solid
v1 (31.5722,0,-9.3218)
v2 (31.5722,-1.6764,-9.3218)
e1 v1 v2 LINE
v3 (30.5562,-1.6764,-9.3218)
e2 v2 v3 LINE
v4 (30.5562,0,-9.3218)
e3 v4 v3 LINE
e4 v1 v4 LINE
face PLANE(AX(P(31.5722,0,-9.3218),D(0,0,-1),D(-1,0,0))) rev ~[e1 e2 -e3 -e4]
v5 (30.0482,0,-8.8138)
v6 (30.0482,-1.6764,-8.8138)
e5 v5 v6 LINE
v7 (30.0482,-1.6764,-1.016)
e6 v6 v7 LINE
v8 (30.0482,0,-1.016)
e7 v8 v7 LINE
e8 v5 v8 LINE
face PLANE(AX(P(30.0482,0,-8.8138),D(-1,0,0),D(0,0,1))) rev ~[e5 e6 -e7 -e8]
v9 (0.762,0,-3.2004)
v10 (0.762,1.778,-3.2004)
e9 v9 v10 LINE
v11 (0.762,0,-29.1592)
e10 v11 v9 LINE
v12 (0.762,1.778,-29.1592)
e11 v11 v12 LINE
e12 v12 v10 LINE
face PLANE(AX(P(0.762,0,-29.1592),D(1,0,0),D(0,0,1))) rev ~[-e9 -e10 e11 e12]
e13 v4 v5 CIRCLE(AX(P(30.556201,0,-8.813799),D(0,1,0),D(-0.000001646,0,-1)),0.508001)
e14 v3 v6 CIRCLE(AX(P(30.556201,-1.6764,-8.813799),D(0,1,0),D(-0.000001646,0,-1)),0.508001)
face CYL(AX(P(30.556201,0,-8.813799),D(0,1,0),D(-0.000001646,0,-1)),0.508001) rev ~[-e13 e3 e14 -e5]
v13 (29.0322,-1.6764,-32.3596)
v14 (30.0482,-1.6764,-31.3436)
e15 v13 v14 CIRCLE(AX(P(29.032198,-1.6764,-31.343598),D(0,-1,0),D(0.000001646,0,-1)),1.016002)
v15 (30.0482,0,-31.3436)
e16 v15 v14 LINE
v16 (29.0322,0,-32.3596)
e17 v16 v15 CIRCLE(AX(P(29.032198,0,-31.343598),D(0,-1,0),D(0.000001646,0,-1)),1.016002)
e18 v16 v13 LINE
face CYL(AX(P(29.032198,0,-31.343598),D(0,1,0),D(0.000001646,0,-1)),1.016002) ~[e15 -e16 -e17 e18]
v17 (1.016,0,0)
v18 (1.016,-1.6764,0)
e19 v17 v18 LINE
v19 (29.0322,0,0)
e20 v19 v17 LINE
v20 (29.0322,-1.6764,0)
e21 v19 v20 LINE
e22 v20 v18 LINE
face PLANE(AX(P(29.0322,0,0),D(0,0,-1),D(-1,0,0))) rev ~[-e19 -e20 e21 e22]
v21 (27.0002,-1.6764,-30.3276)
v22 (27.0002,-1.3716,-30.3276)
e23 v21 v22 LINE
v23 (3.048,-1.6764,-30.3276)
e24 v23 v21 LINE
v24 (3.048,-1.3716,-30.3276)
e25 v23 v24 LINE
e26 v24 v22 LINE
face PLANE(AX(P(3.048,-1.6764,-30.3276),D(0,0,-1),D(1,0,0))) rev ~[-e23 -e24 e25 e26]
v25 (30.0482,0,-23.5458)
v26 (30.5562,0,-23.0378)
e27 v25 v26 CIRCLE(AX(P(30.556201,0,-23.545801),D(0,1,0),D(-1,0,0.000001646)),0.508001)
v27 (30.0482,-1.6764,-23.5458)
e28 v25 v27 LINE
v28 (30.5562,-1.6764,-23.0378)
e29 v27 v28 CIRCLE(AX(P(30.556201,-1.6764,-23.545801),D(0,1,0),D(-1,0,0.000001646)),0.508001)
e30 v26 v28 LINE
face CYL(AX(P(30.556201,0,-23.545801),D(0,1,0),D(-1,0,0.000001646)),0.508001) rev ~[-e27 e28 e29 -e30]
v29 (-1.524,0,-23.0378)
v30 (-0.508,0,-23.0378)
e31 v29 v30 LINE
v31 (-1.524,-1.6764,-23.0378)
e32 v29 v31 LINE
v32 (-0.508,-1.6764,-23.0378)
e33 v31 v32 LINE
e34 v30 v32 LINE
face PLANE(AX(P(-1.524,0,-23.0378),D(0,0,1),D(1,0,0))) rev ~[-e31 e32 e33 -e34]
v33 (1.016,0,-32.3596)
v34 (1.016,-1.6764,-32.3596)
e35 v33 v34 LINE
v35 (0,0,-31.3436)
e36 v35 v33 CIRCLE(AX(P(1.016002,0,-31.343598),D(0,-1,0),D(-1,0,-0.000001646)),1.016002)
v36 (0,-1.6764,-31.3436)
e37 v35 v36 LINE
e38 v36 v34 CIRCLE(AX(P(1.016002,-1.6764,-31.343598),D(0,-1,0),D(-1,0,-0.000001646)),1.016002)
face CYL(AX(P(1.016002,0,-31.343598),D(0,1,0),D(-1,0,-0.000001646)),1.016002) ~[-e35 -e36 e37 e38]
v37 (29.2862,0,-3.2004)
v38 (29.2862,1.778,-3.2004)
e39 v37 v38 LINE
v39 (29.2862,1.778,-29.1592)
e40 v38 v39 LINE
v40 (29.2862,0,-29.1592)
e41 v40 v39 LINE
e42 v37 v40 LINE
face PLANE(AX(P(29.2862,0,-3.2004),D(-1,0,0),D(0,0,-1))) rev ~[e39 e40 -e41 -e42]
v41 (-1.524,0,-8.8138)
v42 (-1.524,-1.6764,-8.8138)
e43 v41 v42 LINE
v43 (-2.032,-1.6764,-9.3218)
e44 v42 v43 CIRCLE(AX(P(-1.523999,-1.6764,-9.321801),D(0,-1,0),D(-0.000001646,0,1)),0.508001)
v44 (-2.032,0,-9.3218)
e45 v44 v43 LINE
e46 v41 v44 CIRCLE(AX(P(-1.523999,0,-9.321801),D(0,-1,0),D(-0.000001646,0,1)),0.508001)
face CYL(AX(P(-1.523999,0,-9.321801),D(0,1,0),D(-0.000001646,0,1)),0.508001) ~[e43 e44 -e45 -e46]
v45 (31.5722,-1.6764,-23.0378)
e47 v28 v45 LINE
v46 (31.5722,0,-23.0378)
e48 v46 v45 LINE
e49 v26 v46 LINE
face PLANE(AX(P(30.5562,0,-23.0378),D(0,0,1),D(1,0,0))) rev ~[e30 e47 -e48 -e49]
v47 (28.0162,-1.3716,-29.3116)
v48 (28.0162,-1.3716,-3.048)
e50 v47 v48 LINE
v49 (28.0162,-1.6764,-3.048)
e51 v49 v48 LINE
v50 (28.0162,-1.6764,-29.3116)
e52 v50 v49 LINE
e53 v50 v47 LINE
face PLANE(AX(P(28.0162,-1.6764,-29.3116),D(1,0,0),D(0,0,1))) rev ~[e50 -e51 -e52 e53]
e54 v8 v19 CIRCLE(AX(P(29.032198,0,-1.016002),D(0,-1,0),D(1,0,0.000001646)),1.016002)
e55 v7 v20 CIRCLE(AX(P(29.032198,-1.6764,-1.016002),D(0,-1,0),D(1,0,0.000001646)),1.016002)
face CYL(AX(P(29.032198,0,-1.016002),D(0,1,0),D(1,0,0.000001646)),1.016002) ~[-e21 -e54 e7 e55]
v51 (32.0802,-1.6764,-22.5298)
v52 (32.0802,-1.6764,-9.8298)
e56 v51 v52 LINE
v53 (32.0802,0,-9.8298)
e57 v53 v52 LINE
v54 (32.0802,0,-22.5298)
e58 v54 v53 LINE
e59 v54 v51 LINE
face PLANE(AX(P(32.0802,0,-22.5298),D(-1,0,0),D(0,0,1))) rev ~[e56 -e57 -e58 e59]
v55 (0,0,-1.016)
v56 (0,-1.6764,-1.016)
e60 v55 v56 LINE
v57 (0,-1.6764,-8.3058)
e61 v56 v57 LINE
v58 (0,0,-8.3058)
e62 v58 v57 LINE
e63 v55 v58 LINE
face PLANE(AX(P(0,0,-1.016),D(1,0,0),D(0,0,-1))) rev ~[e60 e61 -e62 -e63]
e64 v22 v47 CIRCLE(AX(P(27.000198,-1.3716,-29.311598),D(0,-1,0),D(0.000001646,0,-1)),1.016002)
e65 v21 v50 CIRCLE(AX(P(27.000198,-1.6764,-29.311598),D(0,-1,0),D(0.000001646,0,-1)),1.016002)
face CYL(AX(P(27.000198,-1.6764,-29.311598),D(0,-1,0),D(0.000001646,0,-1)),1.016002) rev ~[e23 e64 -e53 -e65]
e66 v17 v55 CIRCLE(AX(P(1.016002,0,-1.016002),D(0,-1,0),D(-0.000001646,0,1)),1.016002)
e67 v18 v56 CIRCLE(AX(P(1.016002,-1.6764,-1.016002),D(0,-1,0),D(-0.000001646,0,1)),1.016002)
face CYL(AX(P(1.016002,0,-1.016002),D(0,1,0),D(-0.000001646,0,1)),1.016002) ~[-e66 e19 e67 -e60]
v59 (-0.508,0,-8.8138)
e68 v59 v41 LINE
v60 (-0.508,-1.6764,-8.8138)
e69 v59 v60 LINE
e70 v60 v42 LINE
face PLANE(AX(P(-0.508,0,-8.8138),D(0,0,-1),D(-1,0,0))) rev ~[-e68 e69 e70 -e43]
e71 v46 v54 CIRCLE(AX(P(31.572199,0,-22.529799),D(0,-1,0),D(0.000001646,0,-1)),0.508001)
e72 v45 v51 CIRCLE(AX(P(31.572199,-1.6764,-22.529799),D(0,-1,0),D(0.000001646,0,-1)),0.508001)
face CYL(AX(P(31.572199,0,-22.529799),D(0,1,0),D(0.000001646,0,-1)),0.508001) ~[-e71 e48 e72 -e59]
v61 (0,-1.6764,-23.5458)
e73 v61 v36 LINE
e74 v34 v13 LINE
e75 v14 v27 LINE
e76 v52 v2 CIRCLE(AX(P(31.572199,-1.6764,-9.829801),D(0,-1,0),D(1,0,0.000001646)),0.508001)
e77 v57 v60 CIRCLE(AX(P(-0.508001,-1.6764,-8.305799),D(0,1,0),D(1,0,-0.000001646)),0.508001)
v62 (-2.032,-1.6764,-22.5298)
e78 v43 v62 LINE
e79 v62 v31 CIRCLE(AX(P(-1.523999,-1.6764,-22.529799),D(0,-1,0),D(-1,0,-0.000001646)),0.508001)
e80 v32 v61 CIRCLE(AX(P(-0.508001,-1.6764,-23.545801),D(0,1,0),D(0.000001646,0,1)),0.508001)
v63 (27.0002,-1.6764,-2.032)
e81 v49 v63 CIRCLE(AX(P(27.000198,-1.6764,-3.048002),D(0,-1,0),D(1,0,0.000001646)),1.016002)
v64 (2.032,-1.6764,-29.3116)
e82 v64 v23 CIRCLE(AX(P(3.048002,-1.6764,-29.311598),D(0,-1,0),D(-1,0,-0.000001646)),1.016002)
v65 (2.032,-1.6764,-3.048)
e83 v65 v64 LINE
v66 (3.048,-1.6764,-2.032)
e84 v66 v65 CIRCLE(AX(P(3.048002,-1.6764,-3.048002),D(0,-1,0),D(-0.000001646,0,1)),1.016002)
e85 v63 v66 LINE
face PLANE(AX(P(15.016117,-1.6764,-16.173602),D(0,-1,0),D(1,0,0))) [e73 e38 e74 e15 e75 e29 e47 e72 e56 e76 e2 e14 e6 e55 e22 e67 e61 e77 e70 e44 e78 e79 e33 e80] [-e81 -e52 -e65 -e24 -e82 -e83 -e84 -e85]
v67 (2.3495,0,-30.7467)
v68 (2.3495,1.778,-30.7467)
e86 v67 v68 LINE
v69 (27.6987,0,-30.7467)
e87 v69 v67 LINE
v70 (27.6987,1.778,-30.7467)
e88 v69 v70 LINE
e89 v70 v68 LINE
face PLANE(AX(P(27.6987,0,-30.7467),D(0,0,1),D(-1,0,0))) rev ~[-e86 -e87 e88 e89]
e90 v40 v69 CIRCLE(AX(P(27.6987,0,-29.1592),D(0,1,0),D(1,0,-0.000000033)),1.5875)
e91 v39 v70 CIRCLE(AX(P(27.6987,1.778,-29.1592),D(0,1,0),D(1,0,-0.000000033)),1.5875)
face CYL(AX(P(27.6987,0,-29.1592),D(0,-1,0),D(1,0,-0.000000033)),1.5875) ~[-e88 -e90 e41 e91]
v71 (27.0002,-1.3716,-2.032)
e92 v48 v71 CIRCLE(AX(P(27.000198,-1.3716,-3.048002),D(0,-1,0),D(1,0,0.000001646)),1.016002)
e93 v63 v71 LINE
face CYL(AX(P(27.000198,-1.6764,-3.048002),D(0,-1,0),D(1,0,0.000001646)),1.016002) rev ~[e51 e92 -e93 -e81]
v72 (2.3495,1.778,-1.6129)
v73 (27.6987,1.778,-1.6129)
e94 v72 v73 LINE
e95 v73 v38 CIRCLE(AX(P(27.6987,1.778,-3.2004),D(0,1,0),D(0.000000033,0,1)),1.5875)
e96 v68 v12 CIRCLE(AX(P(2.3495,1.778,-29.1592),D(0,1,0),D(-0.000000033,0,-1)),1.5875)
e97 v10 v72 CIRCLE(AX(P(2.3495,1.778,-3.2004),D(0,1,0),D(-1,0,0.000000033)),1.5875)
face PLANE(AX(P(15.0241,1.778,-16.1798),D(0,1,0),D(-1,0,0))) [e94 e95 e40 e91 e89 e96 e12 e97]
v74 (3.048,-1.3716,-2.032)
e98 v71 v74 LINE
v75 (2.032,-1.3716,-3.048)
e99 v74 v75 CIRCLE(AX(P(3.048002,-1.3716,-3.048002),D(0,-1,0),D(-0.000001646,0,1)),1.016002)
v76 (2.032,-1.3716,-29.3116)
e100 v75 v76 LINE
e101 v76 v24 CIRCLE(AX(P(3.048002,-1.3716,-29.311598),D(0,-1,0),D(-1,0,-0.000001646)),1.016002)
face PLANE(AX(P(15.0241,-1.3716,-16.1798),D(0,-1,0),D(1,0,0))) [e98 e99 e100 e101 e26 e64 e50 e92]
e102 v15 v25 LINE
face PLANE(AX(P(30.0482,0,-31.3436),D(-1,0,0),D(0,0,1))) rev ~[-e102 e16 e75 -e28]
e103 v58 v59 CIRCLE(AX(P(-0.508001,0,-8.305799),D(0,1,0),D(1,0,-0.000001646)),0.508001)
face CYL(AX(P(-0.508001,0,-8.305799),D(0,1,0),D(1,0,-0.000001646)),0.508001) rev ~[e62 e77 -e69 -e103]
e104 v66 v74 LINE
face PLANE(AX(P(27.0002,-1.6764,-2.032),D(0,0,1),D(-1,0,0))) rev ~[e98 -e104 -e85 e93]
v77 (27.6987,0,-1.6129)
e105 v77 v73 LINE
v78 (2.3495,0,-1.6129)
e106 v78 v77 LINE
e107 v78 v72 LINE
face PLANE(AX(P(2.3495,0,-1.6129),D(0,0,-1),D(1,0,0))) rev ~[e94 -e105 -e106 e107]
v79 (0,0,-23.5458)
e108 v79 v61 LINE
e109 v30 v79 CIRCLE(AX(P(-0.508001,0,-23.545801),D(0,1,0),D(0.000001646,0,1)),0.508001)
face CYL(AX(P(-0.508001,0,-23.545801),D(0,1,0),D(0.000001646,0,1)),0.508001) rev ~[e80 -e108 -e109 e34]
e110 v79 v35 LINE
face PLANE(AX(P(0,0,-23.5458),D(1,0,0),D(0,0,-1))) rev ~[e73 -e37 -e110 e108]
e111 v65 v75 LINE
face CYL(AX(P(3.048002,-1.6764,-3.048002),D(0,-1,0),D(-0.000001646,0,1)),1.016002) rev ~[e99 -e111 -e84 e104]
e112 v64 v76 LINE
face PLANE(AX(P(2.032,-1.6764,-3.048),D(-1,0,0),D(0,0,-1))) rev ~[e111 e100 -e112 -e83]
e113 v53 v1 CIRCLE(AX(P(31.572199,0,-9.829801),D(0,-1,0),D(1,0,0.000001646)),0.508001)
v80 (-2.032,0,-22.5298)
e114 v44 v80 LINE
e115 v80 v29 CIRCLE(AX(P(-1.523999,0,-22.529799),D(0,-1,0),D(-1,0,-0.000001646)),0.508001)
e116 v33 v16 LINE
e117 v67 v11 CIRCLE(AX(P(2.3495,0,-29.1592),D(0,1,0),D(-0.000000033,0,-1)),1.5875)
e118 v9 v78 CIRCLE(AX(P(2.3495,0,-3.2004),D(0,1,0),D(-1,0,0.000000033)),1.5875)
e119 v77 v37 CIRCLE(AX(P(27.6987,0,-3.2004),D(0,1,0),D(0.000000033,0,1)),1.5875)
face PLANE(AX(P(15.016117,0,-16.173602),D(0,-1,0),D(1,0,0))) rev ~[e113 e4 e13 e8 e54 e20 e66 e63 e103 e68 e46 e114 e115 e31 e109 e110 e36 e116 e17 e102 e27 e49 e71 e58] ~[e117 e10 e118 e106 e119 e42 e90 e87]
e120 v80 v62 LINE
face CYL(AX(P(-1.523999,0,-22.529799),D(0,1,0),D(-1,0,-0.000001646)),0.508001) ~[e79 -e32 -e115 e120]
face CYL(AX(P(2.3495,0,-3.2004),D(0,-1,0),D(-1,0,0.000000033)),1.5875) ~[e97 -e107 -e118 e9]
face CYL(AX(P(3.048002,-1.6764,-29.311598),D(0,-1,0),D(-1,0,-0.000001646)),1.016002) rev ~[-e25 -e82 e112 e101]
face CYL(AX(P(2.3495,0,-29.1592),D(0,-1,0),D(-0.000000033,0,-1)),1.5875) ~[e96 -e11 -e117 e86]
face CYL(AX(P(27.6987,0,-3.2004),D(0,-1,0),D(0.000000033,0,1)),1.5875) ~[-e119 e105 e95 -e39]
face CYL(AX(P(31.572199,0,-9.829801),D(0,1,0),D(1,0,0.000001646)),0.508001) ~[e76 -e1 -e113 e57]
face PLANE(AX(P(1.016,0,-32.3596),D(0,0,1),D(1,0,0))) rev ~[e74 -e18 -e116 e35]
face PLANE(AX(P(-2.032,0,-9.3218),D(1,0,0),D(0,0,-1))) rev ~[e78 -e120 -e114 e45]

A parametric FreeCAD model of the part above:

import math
import FreeCAD as App
import Part
import Sketcher

V = App.Vector
Q = App.Units.Quantity

doc = App.newDocument("Part")
body = doc.addObject("PartDesign::Body", "Body")

# Sketch on XZ plane
sketch1 = body.newObject("Sketcher::SketchObject", "Sketch")
sketch1.AttachmentSupport = (doc.getObject("XZ_Plane"), [""])
sketch1.MapMode = "FlatFace"
sketch1.addGeometry([
    Part.LineSegment(V(29.0322, 0, 0), V(1.016, 0, 0)),  # 0
    Part.ArcOfCircle(Part.Circle(V(1.016002, -1.016002, 0), V(0, 0, 1), 1.016002), math.radians(90.000094), math.radians(179.999906)),  # 1
    Part.LineSegment(V(0, -1.016, 0), V(0, -8.3058, 0)),  # 2
    Part.ArcOfCircle(Part.Circle(V(-0.508001, -8.305799, 0), V(0, 0, 1), 0.508001), math.radians(-89.999906), math.radians(-0.000094)),  # 3
    Part.LineSegment(V(-0.508, -8.8138, 0), V(-1.524, -8.8138, 0)),  # 4
    Part.ArcOfCircle(Part.Circle(V(-1.523999, -9.321801, 0), V(0, 0, 1), 0.508001), math.radians(90.000094), math.radians(179.999906)),  # 5
    Part.LineSegment(V(-2.032, -9.3218, 0), V(-2.032, -22.5298, 0)),  # 6
    Part.ArcOfCircle(Part.Circle(V(-1.523999, -22.529799, 0), V(0, 0, 1), 0.508001), math.radians(-179.999906), math.radians(-90.000094)),  # 7
    Part.LineSegment(V(-1.524, -23.0378, 0), V(-0.508, -23.0378, 0)),  # 8
    Part.ArcOfCircle(Part.Circle(V(-0.508001, -23.545801, 0), V(0, 0, 1), 0.508001), math.radians(0.000094), math.radians(89.999906)),  # 9
    Part.LineSegment(V(0, -23.5458, 0), V(0, -31.3436, 0)),  # 10
    Part.ArcOfCircle(Part.Circle(V(1.016002, -31.343598, 0), V(0, 0, 1), 1.016002), math.radians(-179.999906), math.radians(-90.000094)),  # 11
    Part.LineSegment(V(1.016, -32.3596, 0), V(29.0322, -32.3596, 0)),  # 12
    Part.ArcOfCircle(Part.Circle(V(29.032198, -31.343598, 0), V(0, 0, 1), 1.016002), math.radians(-89.999906), math.radians(-0.000094)),  # 13
    Part.LineSegment(V(30.0482, -31.3436, 0), V(30.0482, -23.5458, 0)),  # 14
    Part.ArcOfCircle(Part.Circle(V(30.556201, -23.545801, 0), V(0, 0, 1), 0.508001), math.radians(90.000094), math.radians(179.999906)),  # 15
    Part.LineSegment(V(30.5562, -23.0378, 0), V(31.5722, -23.0378, 0)),  # 16
    Part.ArcOfCircle(Part.Circle(V(31.572199, -22.529799, 0), V(0, 0, 1), 0.508001), math.radians(-89.999906), math.radians(-0.000094)),  # 17
    Part.LineSegment(V(32.0802, -22.5298, 0), V(32.0802, -9.8298, 0)),  # 18
    Part.ArcOfCircle(Part.Circle(V(31.572199, -9.829801, 0), V(0, 0, 1), 0.508001), math.radians(0.000094), math.radians(89.999906)),  # 19
    Part.LineSegment(V(31.5722, -9.3218, 0), V(30.5562, -9.3218, 0)),  # 20
    Part.ArcOfCircle(Part.Circle(V(30.556201, -8.813799, 0), V(0, 0, 1), 0.508001), math.radians(-179.999906), math.radians(-90.000094)),  # 21
    Part.LineSegment(V(30.0482, -8.8138, 0), V(30.0482, -1.016, 0)),  # 22
    Part.ArcOfCircle(Part.Circle(V(29.032198, -1.016002, 0), V(0, 0, 1), 1.016002), math.radians(0.000094), math.radians(89.999906)),  # 23
], False)
sketch1.addConstraint([
    Sketcher.Constraint("Tangent", 0, 2, 1, 1),
    Sketcher.Constraint("Tangent", 1, 2, 2, 1),
    Sketcher.Constraint("Tangent", 2, 2, 3, 2),
    Sketcher.Constraint("Tangent", 3, 1, 4, 1),
    Sketcher.Constraint("Tangent", 4, 2, 5, 1),
    Sketcher.Constraint("Tangent", 5, 2, 6, 1),
    Sketcher.Constraint("Tangent", 6, 2, 7, 1),
    Sketcher.Constraint("Tangent", 7, 2, 8, 1),
    Sketcher.Constraint("Tangent", 8, 2, 9, 2),
    Sketcher.Constraint("Tangent", 9, 1, 10, 1),
    Sketcher.Constraint("Tangent", 10, 2, 11, 1),
    Sketcher.Constraint("Tangent", 11, 2, 12, 1),
    Sketcher.Constraint("Tangent", 12, 2, 13, 1),
    Sketcher.Constraint("Tangent", 13, 2, 14, 1),
    Sketcher.Constraint("Tangent", 14, 2, 15, 2),
    Sketcher.Constraint("Tangent", 15, 1, 16, 1),
    Sketcher.Constraint("Tangent", 16, 2, 17, 1),
    Sketcher.Constraint("Tangent", 17, 2, 18, 1),
    Sketcher.Constraint("Tangent", 18, 2, 19, 1),
    Sketcher.Constraint("Tangent", 19, 2, 20, 1),
    Sketcher.Constraint("Tangent", 20, 2, 21, 2),
    Sketcher.Constraint("Tangent", 21, 1, 22, 1),
    Sketcher.Constraint("Tangent", 22, 2, 23, 1),
    Sketcher.Constraint("Tangent", 23, 2, 0, 1),
    Sketcher.Constraint("Horizontal", 0),
    Sketcher.Constraint("Vertical", 2),
    Sketcher.Constraint("Horizontal", 4),
    Sketcher.Constraint("Vertical", 6),
    Sketcher.Constraint("Horizontal", 8),
    Sketcher.Constraint("Vertical", 10),
    Sketcher.Constraint("Horizontal", 12),
    Sketcher.Constraint("Vertical", 14),
    Sketcher.Constraint("Horizontal", 16),
    Sketcher.Constraint("Vertical", 18),
    Sketcher.Constraint("Horizontal", 20),
    Sketcher.Constraint("Vertical", 22),
    Sketcher.Constraint("Equal", 3, 5),
    Sketcher.Constraint("Equal", 5, 7),
    Sketcher.Constraint("Equal", 7, 9),
    Sketcher.Constraint("Equal", 1, 11),
    Sketcher.Constraint("Equal", 11, 13),
    Sketcher.Constraint("Equal", 9, 15),
    Sketcher.Constraint("Equal", 15, 17),
    Sketcher.Constraint("Equal", 17, 19),
    Sketcher.Constraint("Equal", 19, 21),
    Sketcher.Constraint("Equal", 13, 23),
    Sketcher.Constraint("PointOnObject", 0, 2, -1),
    Sketcher.Constraint("PointOnObject", 1, 2, -2),
    Sketcher.Constraint("PointOnObject", 9, 1, -2),
    Sketcher.Constraint("Horizontal", 9, 3, 15, 3),
    Sketcher.Constraint("Horizontal", 21, 3, 3, 1),
    Sketcher.Constraint("Vertical", 15, 3, 21, 3),
    Sketcher.Constraint("Equal", 8, 16),
    Sketcher.Constraint("Equal", 14, 22),
    Sketcher.Constraint("Radius", 1, Q("0.0400001 in")),
    Sketcher.Constraint("Radius", 3, Q("0.02 in")),
    Sketcher.Constraint("DistanceY", 18, 1, 18, 2, Q("0.5 in")),
    Sketcher.Constraint("DistanceX", 4, 2, 4, 1, Q("0.04 in")),
    Sketcher.Constraint("DistanceX", 0, 2, 0, 1, Q("1.103 in")),
    Sketcher.Constraint("DistanceY", 2, 2, 2, 1, Q("0.287 in")),
])
pad1 = body.newObject("PartDesign::Pad", "Pad")
pad1.Profile = sketch1
pad1.Length = Q("0.066 in")

# Sketch on XZ plane
sketch2 = body.newObject("Sketcher::SketchObject", "Sketch001")
sketch2.AttachmentSupport = (doc.getObject("XZ_Plane"), [""])
sketch2.MapMode = "FlatFace"
sketch2.AttachmentOffset = App.Placement(V(0, 0, 0.066 * 25.4), App.Rotation())
sketch2.addGeometry([
    Part.LineSegment(V(27.0002, -2.032, 0), V(3.048, -2.032, 0)),  # 0
    Part.ArcOfCircle(Part.Circle(V(3.048002, -3.048002, 0), V(0, 0, 1), 1.016002), math.radians(90.000094), math.radians(179.999906)),  # 1
    Part.LineSegment(V(2.032, -3.048, 0), V(2.032, -29.3116, 0)),  # 2
    Part.ArcOfCircle(Part.Circle(V(3.048002, -29.311598, 0), V(0, 0, 1), 1.016002), math.radians(-179.999906), math.radians(-90.000094)),  # 3
    Part.LineSegment(V(3.048, -30.3276, 0), V(27.0002, -30.3276, 0)),  # 4
    Part.ArcOfCircle(Part.Circle(V(27.000198, -29.311598, 0), V(0, 0, 1), 1.016002), math.radians(-89.999906), math.radians(-0.000094)),  # 5
    Part.LineSegment(V(28.0162, -29.3116, 0), V(28.0162, -3.048, 0)),  # 6
    Part.ArcOfCircle(Part.Circle(V(27.000198, -3.048002, 0), V(0, 0, 1), 1.016002), math.radians(0.000094), math.radians(89.999906)),  # 7
], False)
sketch2.addConstraint([
    Sketcher.Constraint("Tangent", 0, 2, 1, 1),
    Sketcher.Constraint("Tangent", 1, 2, 2, 1),
    Sketcher.Constraint("Tangent", 2, 2, 3, 1),
    Sketcher.Constraint("Tangent", 3, 2, 4, 1),
    Sketcher.Constraint("Tangent", 4, 2, 5, 1),
    Sketcher.Constraint("Tangent", 5, 2, 6, 1),
    Sketcher.Constraint("Tangent", 6, 2, 7, 1),
    Sketcher.Constraint("Tangent", 7, 2, 0, 1),
    Sketcher.Constraint("Horizontal", 0),
    Sketcher.Constraint("Vertical", 2),
    Sketcher.Constraint("Horizontal", 4),
    Sketcher.Constraint("Vertical", 6),
    Sketcher.Constraint("Equal", 1, 3),
    Sketcher.Constraint("Equal", 3, 5),
    Sketcher.Constraint("Equal", 5, 7),
    Sketcher.Constraint("Radius", 1, Q("0.0400001 in")),
    Sketcher.Constraint("DistanceX", 0, 2, 0, 1, Q("0.943 in")),
    Sketcher.Constraint("DistanceY", 2, 2, 2, 1, Q("1.034 in")),
    Sketcher.Constraint("DistanceX", -1, 1, 1, 3, Q("0.1200001 in")),
    Sketcher.Constraint("DistanceY", 1, 3, -1, 1, Q("0.1200001 in")),
])
pocket1 = body.newObject("PartDesign::Pocket", "Pocket")
pocket1.Profile = sketch2
pocket1.Length = Q("0.012 in")

# Sketch on XZ plane
sketch3 = body.newObject("Sketcher::SketchObject", "Sketch002")
sketch3.AttachmentSupport = (doc.getObject("XZ_Plane"), [""])
sketch3.MapMode = "FlatFace"
sketch3.addGeometry([
    Part.LineSegment(V(2.3495, -1.6129, 0), V(27.6987, -1.6129, 0)),  # 0
    Part.ArcOfCircle(Part.Circle(V(27.6987, -3.2004, 0), V(0, 0, 1), 1.5875), math.radians(0.000002), math.radians(89.999998)),  # 1
    Part.LineSegment(V(29.2862, -3.2004, 0), V(29.2862, -29.1592, 0)),  # 2
    Part.ArcOfCircle(Part.Circle(V(27.6987, -29.1592, 0), V(0, 0, 1), 1.5875), math.radians(-89.999998), math.radians(-0.000002)),  # 3
    Part.LineSegment(V(27.6987, -30.7467, 0), V(2.3495, -30.7467, 0)),  # 4
    Part.ArcOfCircle(Part.Circle(V(2.3495, -29.1592, 0), V(0, 0, 1), 1.5875), math.radians(-179.999998), math.radians(-90.000002)),  # 5
    Part.LineSegment(V(0.762, -29.1592, 0), V(0.762, -3.2004, 0)),  # 6
    Part.ArcOfCircle(Part.Circle(V(2.3495, -3.2004, 0), V(0, 0, 1), 1.5875), math.radians(90.000002), math.radians(179.999998)),  # 7
], False)
sketch3.addConstraint([
    Sketcher.Constraint("Tangent", 0, 2, 1, 2),
    Sketcher.Constraint("Tangent", 1, 1, 2, 1),
    Sketcher.Constraint("Tangent", 2, 2, 3, 2),
    Sketcher.Constraint("Tangent", 3, 1, 4, 1),
    Sketcher.Constraint("Tangent", 4, 2, 5, 2),
    Sketcher.Constraint("Tangent", 5, 1, 6, 1),
    Sketcher.Constraint("Tangent", 6, 2, 7, 2),
    Sketcher.Constraint("Tangent", 7, 1, 0, 1),
    Sketcher.Constraint("Horizontal", 0),
    Sketcher.Constraint("Vertical", 2),
    Sketcher.Constraint("Horizontal", 4),
    Sketcher.Constraint("Vertical", 6),
    Sketcher.Constraint("Equal", 1, 3),
    Sketcher.Constraint("Equal", 3, 5),
    Sketcher.Constraint("Equal", 5, 7),
    Sketcher.Constraint("Radius", 1, Q("0.0625 in")),
    Sketcher.Constraint("DistanceX", 0, 1, 0, 2, Q("0.998 in")),
    Sketcher.Constraint("DistanceY", 2, 2, 2, 1, Q("1.022 in")),
    Sketcher.Constraint("DistanceX", -1, 1, 5, 1, Q("0.03 in")),
    Sketcher.Constraint("DistanceY", 1, 3, -1, 1, Q("0.126 in")),
])
pad2 = body.newObject("PartDesign::Pad", "Pad001")
pad2.Profile = sketch3
pad2.Length = Q("0.07 in")
pad2.Reversed = True

doc.recompute()
